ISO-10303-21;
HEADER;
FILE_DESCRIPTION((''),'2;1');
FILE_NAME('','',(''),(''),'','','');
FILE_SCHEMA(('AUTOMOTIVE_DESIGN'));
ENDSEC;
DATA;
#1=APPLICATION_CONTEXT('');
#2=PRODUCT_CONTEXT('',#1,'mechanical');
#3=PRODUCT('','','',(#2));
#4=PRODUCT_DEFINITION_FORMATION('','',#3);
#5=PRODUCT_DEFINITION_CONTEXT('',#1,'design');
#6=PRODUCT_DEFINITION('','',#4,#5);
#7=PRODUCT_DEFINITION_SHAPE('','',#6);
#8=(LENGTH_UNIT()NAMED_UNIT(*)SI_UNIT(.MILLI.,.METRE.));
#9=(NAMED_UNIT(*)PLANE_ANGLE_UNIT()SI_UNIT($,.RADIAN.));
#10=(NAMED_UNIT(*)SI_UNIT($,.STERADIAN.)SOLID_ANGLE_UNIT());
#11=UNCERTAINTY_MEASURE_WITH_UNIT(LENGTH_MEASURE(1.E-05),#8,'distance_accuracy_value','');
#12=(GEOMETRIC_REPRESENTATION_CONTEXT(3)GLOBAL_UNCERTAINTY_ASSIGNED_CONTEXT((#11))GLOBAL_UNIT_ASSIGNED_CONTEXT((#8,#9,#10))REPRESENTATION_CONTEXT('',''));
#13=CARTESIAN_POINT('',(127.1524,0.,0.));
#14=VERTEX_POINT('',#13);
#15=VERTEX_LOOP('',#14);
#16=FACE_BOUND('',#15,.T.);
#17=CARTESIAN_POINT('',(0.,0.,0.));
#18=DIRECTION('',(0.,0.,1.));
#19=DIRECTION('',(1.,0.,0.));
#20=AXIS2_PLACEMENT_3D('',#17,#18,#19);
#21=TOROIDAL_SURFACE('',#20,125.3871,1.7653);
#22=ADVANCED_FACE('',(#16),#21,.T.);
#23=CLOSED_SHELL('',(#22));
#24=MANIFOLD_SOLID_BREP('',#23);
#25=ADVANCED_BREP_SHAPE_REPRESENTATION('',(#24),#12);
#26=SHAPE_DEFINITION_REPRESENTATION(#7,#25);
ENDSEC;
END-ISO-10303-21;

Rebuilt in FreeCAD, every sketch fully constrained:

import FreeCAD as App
import Part
import Sketcher
Q = App.Units.Quantity

doc = App.newDocument("Part")
body = doc.addObject("PartDesign::Body", "Body")

sketch1 = body.newObject("Sketcher::SketchObject", "Sketch")
sketch1.AttachmentSupport = (doc.getObject("YZ_Plane"), [""])
sketch1.MapMode = "FlatFace"
sketch1.addGeometry(Part.Circle(App.Vector(-125.3871, 0, 0), App.Vector(0, 0, 1), 1.7653), False)
sketch1.addConstraint([
    Sketcher.Constraint("PointOnObject", 0, 3, -1),
    Sketcher.Constraint("Diameter", 0, Q("0.139 in")),
    Sketcher.Constraint("DistanceX", 0, 3, -1, 1, Q("4.9365 in")),
])
revolution = body.newObject("PartDesign::Revolution", "Revolution")
revolution.Profile = sketch1
revolution.ReferenceAxis = (sketch1, ["V_Axis"])
revolution.Angle = 360

doc.recompute()
